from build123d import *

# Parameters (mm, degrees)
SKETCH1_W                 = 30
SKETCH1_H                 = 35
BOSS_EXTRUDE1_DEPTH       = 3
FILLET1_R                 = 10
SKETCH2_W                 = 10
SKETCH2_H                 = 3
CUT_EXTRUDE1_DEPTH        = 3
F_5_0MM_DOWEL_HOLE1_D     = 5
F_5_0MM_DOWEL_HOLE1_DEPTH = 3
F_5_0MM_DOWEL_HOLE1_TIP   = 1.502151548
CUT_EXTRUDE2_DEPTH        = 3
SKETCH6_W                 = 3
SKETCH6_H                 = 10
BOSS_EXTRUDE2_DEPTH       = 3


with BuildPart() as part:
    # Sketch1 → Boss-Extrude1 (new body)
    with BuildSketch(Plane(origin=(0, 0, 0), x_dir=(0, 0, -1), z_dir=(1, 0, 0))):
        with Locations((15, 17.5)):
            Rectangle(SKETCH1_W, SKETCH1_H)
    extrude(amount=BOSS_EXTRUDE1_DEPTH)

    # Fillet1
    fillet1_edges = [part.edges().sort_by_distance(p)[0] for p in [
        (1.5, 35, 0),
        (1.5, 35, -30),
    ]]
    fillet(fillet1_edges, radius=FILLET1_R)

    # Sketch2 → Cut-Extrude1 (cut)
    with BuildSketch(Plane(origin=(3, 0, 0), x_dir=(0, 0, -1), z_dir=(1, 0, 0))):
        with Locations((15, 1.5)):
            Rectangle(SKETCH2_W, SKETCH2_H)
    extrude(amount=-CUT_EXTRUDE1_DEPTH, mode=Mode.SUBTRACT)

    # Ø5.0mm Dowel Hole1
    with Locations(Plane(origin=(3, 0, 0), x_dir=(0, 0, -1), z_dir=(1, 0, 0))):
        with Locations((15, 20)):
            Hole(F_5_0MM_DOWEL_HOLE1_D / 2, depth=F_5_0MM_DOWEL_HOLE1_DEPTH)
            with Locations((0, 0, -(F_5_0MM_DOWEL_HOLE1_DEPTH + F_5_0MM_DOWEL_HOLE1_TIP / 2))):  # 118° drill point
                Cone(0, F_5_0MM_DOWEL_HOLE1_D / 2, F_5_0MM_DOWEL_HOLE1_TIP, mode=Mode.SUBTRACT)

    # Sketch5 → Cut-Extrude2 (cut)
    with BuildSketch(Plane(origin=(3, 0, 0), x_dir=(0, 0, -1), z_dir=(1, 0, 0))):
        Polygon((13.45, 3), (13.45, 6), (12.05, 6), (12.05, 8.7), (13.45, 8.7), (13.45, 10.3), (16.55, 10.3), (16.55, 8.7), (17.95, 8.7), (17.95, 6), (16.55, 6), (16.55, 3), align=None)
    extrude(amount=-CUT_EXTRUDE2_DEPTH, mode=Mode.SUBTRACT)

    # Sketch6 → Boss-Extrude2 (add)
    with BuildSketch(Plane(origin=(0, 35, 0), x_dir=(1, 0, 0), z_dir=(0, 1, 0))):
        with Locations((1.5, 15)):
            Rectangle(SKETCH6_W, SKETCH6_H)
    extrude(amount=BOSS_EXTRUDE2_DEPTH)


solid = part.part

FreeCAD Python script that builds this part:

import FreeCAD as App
import Part
import Sketcher

V = App.Vector
Q = App.Units.Quantity


def edges_at(feature, points):
    """Names of the edges that pass closest to the given points."""
    edges = feature.Shape.Edges
    near = lambda p: min(range(len(edges)), key=lambda i: edges[i].distToShape(Part.Vertex(*p))[0])
    return sorted({f"Edge{near(p) + 1}" for p in points})


def add_polygon(sketch, points):
    """Adds a closed chain of lines whose ends are joined by coincident constraints."""
    first, n = sketch.GeometryCount, len(points)
    for a, b in zip(points, points[1:] + points[:1]):
        sketch.addGeometry(Part.LineSegment(App.Vector(*a, 0), App.Vector(*b, 0)), False)
    for i in range(n):
        sketch.addConstraint(Sketcher.Constraint("Coincident", first + i, 2, first + (i + 1) % n, 1))

doc = App.newDocument("Part")
params = doc.addObject("Spreadsheet::Sheet", "Params")
for row, (alias, value) in enumerate([
    ("sketch1_width", "35 mm"),
    ("sketch1_height", "30 mm"),
    ("pad1_length", "3 mm"),
    ("fillet_radius", "10 mm"),
    ("sketch2_width", "3 mm"),
    ("sketch2_height", "10 mm"),
    ("pocket1_length", "3 mm"),
    ("sketch3_diameter", "5 mm"),
    ("hole_diameter", "5 mm"),
    ("hole_depth", "3 mm"),
    ("sketch4_width", "3 mm"),
    ("sketch4_width2", "2.7 mm"),
    ("sketch4_width3", "1.6 mm"),
    ("sketch4_height", "3.1 mm"),
    ("sketch4_height2", "1.4 mm"),
    ("pocket2_length", "3 mm"),
    ("sketch5_width", "3 mm"),
    ("sketch5_height", "10 mm"),
    ("pad2_length", "3 mm"),
], start=1):
    params.set(f"A{row}", alias)
    params.set(f"B{row}", "=" + value)
    params.setAlias(f"B{row}", alias)

body = doc.addObject("PartDesign::Body", "Body")

sketch1 = body.newObject("Sketcher::SketchObject", "Sketch")
sketch1.AttachmentSupport = (doc.getObject("YZ_Plane"), [""])
sketch1.MapMode = "FlatFace"
add_polygon(sketch1, [(35, 0), (0, 0), (0, -30), (35, -30)])
sketch1.addConstraint([
    Sketcher.Constraint("Horizontal", 0),
    Sketcher.Constraint("Vertical", 1),
    Sketcher.Constraint("Horizontal", 2),
    Sketcher.Constraint("Vertical", 3),
    Sketcher.Constraint("Coincident", 0, 2, -1, 1),
    Sketcher.Constraint("DistanceX", 0, 2, 0, 1, Q("35 mm")),
    Sketcher.Constraint("DistanceY", 1, 2, 1, 1, Q("30 mm")),
])
sketch1.setExpression("Constraints[9]", "Params.sketch1_width")
sketch1.setExpression("Constraints[10]", "Params.sketch1_height")
pad1 = body.newObject("PartDesign::Pad", "Pad")
pad1.Profile = sketch1
pad1.setExpression("Length", "Params.pad1_length")
doc.recompute()

fillet = body.newObject("PartDesign::Fillet", "Fillet")
fillet.Base = (pad1, edges_at(pad1, [(1.5, 35, 0), (1.5, 35, -30)]))
fillet.setExpression("Radius", "Params.fillet_radius")

sketch2 = body.newObject("Sketcher::SketchObject", "Sketch001")
sketch2.AttachmentSupport = (doc.getObject("YZ_Plane"), [""])
sketch2.MapMode = "FlatFace"
sketch2.AttachmentOffset = App.Placement(V(0, 0, 3), App.Rotation())
add_polygon(sketch2, [(3, -10), (0, -10), (0, -20), (3, -20)])
sketch2.addConstraint([
    Sketcher.Constraint("Horizontal", 0),
    Sketcher.Constraint("Vertical", 1),
    Sketcher.Constraint("Horizontal", 2),
    Sketcher.Constraint("Vertical", 3),
    Sketcher.Constraint("PointOnObject", 0, 2, -2),
    Sketcher.Constraint("DistanceX", 0, 2, 0, 1, Q("3 mm")),
    Sketcher.Constraint("DistanceY", 1, 2, 1, 1, Q("10 mm")),
    Sketcher.Constraint("DistanceY", 0, 2, -1, 1, Q("10 mm")),
])
sketch2.setExpression("Constraints[9]", "Params.sketch2_width")
sketch2.setExpression("Constraints[10]", "Params.sketch2_height")
pocket1 = body.newObject("PartDesign::Pocket", "Pocket")
pocket1.Profile = sketch2
pocket1.setExpression("Length", "Params.pocket1_length")

sketch3 = body.newObject("Sketcher::SketchObject", "Sketch002")
sketch3.AttachmentSupport = (doc.getObject("YZ_Plane"), [""])
sketch3.MapMode = "FlatFace"
sketch3.AttachmentOffset = App.Placement(V(0, 0, 3), App.Rotation())
sketch3.addGeometry(Part.Circle(V(20, -15, 0), V(0, 0, 1), 2.5), False)
sketch3.addConstraint([
    Sketcher.Constraint("Diameter", 0, Q("5 mm")),
    Sketcher.Constraint("DistanceX", -1, 1, 0, 3, Q("20 mm")),
    Sketcher.Constraint("DistanceY", 0, 3, -1, 1, Q("15 mm")),
])
sketch3.setExpression("Constraints[0]", "Params.sketch3_diameter")
doc.recompute()
hole = body.newObject("PartDesign::Hole", "Hole")
hole.Profile = sketch3
hole.ThreadType = "None"
hole.setExpression("Diameter", "Params.hole_diameter")
hole.DepthType = "Dimension"
hole.setExpression("Depth", "Params.hole_depth")
hole.DrillPoint = "Angled"
hole.DrillPointAngle = 118

sketch4 = body.newObject("Sketcher::SketchObject", "Sketch003")
sketch4.AttachmentSupport = (doc.getObject("YZ_Plane"), [""])
sketch4.MapMode = "FlatFace"
sketch4.AttachmentOffset = App.Placement(V(0, 0, 3), App.Rotation())
add_polygon(sketch4, [(6, -13.45), (3, -13.45), (3, -16.55), (6, -16.55), (6, -17.95), (8.7, -17.95), (8.7, -16.55), (10.3, -16.55), (10.3, -13.45), (8.7, -13.45), (8.7, -12.05), (6, -12.05)])
sketch4.addConstraint([
    Sketcher.Constraint("Horizontal", 0),
    Sketcher.Constraint("Vertical", 1),
    Sketcher.Constraint("Horizontal", 2),
    Sketcher.Constraint("Vertical", 3),
    Sketcher.Constraint("Horizontal", 4),
    Sketcher.Constraint("Vertical", 5),
    Sketcher.Constraint("Horizontal", 6),
    Sketcher.Constraint("Vertical", 7),
    Sketcher.Constraint("Horizontal", 8),
    Sketcher.Constraint("Vertical", 9),
    Sketcher.Constraint("Horizontal", 10),
    Sketcher.Constraint("Vertical", 11),
    Sketcher.Constraint("Horizontal", 2, 2, 5, 2),
    Sketcher.Constraint("Horizontal", 0, 2, 7, 2),
    Sketcher.Constraint("Vertical", 5, 2, 8, 2),
    Sketcher.Constraint("Vertical", 3, 2, 10, 2),
    Sketcher.Constraint("Equal", 5, 9),
    Sketcher.Constraint("DistanceX", 0, 2, 0, 1, Q("3 mm")),
    Sketcher.Constraint("DistanceX", 4, 1, 4, 2, Q("2.7 mm")),
    Sketcher.Constraint("DistanceX", 6, 1, 6, 2, Q("1.6 mm")),
    Sketcher.Constraint("DistanceY", 1, 2, 1, 1, Q("3.1 mm")),
    Sketcher.Constraint("DistanceY", 3, 2, 3, 1, Q("1.4 mm")),
    Sketcher.Constraint("DistanceX", -1, 1, 0, 2, Q("3 mm")),
    Sketcher.Constraint("DistanceY", 0, 2, -1, 1, Q("13.45 mm")),
])
sketch4.setExpression("Constraints[29]", "Params.sketch4_width")
sketch4.setExpression("Constraints[30]", "Params.sketch4_width2")
sketch4.setExpression("Constraints[31]", "Params.sketch4_width3")
sketch4.setExpression("Constraints[32]", "Params.sketch4_height")
sketch4.setExpression("Constraints[33]", "Params.sketch4_height2")
pocket2 = body.newObject("PartDesign::Pocket", "Pocket001")
pocket2.Profile = sketch4
pocket2.setExpression("Length", "Params.pocket2_length")

sketch5 = body.newObject("Sketcher::SketchObject", "Sketch004")
sketch5.AttachmentSupport = (doc.getObject("XZ_Plane"), [""])
sketch5.MapMode = "FlatFace"
sketch5.AttachmentOffset = App.Placement(V(0, 0, -35), App.Rotation())
add_polygon(sketch5, [(0, -20), (0, -10), (3, -10), (3, -20)])
sketch5.addConstraint([
    Sketcher.Constraint("Vertical", 0),
    Sketcher.Constraint("Horizontal", 1),
    Sketcher.Constraint("Vertical", 2),
    Sketcher.Constraint("Horizontal", 3),
    Sketcher.Constraint("PointOnObject", 0, 2, -2),
    Sketcher.Constraint("DistanceX", 1, 1, 1, 2, Q("3 mm")),
    Sketcher.Constraint("DistanceY", 0, 1, 0, 2, Q("10 mm")),
    Sketcher.Constraint("DistanceY", 0, 2, -1, 1, Q("10 mm")),
])
sketch5.setExpression("Constraints[9]", "Params.sketch5_width")
sketch5.setExpression("Constraints[10]", "Params.sketch5_height")
pad2 = body.newObject("PartDesign::Pad", "Pad001")
pad2.Profile = sketch5
pad2.setExpression("Length", "Params.pad2_length")
pad2.Reversed = True

doc.recompute()
